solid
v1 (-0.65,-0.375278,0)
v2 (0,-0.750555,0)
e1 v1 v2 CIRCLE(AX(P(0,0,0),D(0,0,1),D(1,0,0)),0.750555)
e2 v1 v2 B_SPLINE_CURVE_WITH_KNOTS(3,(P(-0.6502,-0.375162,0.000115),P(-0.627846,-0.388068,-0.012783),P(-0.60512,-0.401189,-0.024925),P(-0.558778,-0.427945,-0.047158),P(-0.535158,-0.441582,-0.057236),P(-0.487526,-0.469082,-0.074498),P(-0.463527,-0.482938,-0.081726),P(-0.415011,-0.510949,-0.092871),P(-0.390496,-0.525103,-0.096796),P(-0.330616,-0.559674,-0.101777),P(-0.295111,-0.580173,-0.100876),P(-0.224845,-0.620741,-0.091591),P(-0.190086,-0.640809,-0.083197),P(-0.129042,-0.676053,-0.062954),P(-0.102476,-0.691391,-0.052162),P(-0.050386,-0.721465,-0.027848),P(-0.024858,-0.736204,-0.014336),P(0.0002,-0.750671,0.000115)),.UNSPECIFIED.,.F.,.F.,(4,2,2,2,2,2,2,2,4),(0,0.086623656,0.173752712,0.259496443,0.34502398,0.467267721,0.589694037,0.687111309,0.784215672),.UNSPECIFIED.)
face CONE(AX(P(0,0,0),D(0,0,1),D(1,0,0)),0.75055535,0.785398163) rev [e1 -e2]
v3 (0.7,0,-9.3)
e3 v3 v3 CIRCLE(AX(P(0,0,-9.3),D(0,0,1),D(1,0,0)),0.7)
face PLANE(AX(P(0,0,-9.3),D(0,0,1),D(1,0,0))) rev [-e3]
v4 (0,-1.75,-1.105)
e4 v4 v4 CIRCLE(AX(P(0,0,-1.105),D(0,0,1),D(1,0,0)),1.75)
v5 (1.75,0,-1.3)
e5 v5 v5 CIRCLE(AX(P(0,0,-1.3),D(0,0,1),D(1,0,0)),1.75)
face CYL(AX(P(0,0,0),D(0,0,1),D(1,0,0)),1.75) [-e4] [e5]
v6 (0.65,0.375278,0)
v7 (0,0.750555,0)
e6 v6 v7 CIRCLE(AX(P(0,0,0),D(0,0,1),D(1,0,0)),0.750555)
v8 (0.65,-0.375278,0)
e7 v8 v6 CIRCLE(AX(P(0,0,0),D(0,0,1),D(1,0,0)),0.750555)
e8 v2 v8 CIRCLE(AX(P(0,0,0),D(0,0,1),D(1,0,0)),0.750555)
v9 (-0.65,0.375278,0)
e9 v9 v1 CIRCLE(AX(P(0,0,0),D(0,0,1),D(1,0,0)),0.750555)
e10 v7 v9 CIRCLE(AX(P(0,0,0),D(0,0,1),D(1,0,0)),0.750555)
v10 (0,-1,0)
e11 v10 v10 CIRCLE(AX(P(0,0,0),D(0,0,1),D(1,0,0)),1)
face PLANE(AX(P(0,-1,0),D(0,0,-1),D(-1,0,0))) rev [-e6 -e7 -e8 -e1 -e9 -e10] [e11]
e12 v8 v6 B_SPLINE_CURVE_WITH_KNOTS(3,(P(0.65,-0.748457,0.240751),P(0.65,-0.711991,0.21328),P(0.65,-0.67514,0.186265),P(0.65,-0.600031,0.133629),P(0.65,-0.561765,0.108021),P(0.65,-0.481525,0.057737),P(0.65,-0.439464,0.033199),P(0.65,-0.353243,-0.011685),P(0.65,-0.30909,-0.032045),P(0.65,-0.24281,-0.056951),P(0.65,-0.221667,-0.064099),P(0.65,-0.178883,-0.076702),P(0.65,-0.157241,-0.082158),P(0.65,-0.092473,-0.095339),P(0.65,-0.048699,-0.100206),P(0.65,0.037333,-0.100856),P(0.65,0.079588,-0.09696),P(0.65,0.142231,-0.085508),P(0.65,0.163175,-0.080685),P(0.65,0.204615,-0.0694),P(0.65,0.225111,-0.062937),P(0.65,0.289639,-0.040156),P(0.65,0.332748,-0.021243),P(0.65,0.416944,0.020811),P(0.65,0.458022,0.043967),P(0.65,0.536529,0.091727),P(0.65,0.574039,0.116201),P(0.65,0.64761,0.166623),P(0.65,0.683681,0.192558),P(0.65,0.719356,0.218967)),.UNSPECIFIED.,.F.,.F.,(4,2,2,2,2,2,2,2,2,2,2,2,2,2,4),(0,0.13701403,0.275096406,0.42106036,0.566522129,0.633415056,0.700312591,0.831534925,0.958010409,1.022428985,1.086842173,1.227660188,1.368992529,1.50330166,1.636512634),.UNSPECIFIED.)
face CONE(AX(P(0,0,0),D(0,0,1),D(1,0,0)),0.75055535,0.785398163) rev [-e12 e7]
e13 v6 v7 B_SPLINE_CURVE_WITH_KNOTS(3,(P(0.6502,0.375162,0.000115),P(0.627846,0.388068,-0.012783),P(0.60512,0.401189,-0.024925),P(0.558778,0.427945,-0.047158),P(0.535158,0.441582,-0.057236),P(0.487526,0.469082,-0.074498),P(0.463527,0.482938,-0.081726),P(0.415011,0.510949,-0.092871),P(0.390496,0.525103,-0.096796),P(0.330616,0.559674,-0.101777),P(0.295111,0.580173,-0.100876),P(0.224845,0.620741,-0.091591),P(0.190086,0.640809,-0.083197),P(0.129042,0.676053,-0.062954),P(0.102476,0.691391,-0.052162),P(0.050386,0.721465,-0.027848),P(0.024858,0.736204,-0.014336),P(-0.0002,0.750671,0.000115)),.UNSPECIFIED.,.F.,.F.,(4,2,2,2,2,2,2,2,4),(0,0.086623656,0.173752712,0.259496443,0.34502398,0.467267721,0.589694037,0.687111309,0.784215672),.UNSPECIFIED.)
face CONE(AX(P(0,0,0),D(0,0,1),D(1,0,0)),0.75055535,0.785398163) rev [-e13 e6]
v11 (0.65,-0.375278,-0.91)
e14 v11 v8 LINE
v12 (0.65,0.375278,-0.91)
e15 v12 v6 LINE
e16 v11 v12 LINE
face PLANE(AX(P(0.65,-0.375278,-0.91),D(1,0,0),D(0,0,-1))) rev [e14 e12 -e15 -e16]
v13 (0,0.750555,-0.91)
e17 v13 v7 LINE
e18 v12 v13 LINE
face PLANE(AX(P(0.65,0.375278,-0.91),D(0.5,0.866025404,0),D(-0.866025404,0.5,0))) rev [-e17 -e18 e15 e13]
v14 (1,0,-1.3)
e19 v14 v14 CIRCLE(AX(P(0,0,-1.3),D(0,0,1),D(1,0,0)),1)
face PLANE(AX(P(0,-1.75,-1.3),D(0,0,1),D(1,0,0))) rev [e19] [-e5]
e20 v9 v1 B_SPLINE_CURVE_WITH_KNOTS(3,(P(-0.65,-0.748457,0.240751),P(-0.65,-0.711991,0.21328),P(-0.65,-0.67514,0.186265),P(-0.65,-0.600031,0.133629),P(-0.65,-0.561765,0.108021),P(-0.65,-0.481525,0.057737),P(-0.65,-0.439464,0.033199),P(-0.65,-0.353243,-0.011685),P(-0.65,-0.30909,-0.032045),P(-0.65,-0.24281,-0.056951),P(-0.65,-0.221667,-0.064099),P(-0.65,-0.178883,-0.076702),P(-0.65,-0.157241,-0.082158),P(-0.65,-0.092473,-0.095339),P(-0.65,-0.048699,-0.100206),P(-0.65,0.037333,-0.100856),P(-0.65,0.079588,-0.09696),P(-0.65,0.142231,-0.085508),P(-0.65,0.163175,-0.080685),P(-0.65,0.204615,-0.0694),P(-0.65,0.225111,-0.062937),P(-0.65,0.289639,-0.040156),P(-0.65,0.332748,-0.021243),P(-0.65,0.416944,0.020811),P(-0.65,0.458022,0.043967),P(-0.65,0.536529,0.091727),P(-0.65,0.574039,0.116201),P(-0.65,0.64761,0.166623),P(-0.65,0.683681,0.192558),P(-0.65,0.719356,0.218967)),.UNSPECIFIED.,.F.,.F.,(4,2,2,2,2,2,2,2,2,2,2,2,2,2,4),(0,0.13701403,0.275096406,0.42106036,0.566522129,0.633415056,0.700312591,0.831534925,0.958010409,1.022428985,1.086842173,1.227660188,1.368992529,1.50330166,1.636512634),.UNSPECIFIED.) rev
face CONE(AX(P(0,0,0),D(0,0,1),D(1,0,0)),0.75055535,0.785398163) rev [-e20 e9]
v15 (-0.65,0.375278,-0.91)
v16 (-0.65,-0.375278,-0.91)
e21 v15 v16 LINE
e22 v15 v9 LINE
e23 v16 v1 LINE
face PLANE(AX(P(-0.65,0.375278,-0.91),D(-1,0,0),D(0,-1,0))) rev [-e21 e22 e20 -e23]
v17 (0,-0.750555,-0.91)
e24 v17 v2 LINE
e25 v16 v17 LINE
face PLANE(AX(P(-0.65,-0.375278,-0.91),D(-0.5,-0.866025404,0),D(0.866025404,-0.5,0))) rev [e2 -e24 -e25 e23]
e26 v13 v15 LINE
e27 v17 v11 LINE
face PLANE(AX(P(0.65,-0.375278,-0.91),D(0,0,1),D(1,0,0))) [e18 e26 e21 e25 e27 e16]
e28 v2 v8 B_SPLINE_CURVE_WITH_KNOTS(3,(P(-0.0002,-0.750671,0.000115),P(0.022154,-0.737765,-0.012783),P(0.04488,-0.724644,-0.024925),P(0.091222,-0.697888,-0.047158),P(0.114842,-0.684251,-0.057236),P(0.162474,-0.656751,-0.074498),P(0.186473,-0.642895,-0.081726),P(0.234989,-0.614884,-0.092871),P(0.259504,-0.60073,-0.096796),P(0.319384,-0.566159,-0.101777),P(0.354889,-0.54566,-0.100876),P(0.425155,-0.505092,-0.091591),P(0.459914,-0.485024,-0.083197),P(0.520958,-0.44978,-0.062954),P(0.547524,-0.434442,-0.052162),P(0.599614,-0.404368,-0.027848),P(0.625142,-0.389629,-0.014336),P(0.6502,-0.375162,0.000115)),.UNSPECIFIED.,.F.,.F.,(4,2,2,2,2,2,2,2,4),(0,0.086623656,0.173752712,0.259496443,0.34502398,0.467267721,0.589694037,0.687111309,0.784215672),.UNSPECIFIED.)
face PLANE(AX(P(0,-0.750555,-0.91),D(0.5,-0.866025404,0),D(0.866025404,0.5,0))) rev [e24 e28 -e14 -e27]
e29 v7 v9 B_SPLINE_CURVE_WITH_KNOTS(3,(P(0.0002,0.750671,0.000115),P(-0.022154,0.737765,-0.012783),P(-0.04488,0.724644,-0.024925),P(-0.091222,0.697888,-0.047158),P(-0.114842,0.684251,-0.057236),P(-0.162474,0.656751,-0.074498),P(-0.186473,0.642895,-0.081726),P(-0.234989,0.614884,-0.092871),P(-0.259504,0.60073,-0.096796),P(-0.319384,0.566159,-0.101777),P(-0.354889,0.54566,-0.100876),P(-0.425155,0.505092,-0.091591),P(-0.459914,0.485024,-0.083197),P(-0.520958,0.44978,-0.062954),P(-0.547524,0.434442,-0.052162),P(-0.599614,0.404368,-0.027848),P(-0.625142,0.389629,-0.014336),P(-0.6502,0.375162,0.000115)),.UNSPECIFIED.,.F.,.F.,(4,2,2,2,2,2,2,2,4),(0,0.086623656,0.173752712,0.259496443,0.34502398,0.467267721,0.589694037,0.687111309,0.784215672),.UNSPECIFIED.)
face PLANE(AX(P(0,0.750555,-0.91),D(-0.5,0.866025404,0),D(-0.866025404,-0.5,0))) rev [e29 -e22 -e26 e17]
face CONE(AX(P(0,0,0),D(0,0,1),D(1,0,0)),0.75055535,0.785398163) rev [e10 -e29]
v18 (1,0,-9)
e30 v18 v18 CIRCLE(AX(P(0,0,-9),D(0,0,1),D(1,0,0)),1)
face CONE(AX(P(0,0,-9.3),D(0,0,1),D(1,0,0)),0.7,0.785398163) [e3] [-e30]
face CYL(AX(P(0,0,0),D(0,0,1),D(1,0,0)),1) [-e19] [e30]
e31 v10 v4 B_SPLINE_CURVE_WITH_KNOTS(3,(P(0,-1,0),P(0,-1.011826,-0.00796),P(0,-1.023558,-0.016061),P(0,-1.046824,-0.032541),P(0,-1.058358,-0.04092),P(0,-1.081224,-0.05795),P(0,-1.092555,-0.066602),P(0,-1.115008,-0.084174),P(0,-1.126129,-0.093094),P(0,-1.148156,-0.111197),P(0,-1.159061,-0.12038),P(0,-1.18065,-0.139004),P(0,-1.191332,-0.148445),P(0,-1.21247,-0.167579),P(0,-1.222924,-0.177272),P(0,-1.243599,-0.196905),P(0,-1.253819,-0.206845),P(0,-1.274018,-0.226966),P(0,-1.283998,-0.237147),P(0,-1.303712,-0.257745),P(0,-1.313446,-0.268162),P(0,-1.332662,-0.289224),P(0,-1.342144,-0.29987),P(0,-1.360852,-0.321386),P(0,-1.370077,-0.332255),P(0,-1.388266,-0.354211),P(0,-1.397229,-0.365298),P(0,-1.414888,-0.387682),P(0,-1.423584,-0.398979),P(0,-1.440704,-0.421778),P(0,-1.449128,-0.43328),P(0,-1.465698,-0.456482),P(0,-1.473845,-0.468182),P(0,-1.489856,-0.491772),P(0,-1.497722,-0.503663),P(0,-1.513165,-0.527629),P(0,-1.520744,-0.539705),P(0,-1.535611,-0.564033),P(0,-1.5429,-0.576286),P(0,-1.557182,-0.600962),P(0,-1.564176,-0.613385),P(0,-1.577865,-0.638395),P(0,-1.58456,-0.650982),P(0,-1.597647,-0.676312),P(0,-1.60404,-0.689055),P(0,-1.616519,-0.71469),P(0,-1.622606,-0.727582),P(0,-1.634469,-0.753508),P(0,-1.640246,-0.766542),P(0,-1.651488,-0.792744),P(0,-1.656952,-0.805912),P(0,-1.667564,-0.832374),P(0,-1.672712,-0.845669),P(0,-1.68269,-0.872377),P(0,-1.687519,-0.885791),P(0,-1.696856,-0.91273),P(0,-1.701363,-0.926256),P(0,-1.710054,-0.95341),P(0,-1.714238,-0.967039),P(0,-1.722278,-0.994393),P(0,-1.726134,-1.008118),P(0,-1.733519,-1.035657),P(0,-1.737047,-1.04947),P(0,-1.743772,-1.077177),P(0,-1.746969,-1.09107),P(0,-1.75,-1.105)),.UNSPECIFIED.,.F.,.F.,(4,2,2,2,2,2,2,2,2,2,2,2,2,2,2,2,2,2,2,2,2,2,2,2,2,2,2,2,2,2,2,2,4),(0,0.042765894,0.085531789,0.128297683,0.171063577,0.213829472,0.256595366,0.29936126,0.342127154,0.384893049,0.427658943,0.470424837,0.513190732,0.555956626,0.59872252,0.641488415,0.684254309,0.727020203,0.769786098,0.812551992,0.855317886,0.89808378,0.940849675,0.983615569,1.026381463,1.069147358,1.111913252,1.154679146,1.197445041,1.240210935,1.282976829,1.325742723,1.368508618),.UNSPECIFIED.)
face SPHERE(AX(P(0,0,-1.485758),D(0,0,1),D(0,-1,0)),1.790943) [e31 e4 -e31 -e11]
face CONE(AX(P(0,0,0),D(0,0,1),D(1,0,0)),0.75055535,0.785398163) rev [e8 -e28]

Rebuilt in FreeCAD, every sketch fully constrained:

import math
import FreeCAD as App
import Part
import Sketcher
Q = App.Units.Quantity


def add_polygon(sketch, points):
    """Adds a closed chain of lines whose ends are joined by coincident constraints."""
    first, n = sketch.GeometryCount, len(points)
    for a, b in zip(points, points[1:] + points[:1]):
        sketch.addGeometry(Part.LineSegment(App.Vector(*a, 0), App.Vector(*b, 0)), False)
    for i in range(n):
        sketch.addConstraint(Sketcher.Constraint("Coincident", first + i, 2, first + (i + 1) % n, 1))

doc = App.newDocument("Part")
params = doc.addObject("Spreadsheet::Sheet", "Params")
for row, (alias, value) in enumerate([
    ("sketch1_width", "1 mm"),
    ("sketch1_height", "8 mm"),
    ("sketch1_width2", "0.7 mm"),
    ("revolution_angle", "360 deg"),
    ("sketch2_width", "1 mm"),
    ("sketch2_height", "1.3 mm"),
    ("sketch2_width2", "1.75 mm"),
    ("revolution2_angle", "360 deg"),
    ("pocket1_length", "0.91 mm"),
    ("groove_angle", "360 deg"),
], start=1):
    params.set(f"A{row}", alias)
    params.set(f"B{row}", "=" + value)
    params.setAlias(f"B{row}", alias)

body = doc.addObject("PartDesign::Body", "Body")

# Sketch on YZ plane
sketch1 = doc.addObject("Sketcher::SketchObject", "Sketch")
body.addObject(sketch1)
sketch1.AttachmentSupport = (doc.YZ_Plane, [""])
sketch1.MapMode = "FlatFace"
add_polygon(sketch1, [(0.7, -9.3), (1, -9), (1, -1.3), (0, -1.3), (0, -9.3)])  # lines 0-4
sketch1.addConstraint([
    Sketcher.Constraint("Vertical", 1),
    Sketcher.Constraint("Horizontal", 2),
    Sketcher.Constraint("Vertical", 3),
    Sketcher.Constraint("Horizontal", 4),
    Sketcher.Constraint("PointOnObject", 2, 2, -2),
    Sketcher.Constraint("DistanceX", 2, 2, 2, 1, Q("1 mm")),
    Sketcher.Constraint("DistanceY", 3, 2, 3, 1, Q("8 mm")),
    Sketcher.Constraint("Angle", 0, Q("45 deg")),
    Sketcher.Constraint("DistanceX", 4, 1, 4, 2, Q("0.7 mm")),
    Sketcher.Constraint("DistanceY", 0, 2, -1, 1, Q("9 mm")),
])
sketch1.setExpression("Constraints[10]", "Params.sketch1_width")
sketch1.setExpression("Constraints[11]", "Params.sketch1_height")
sketch1.setExpression("Constraints[13]", "Params.sketch1_width2")
revolution = doc.addObject("PartDesign::Revolution", "Revolution")
body.addObject(revolution)
revolution.Profile = sketch1
revolution.ReferenceAxis = (sketch1, ["V_Axis"])
revolution.setExpression("Angle", "Params.revolution_angle")

# Sketch on YZ plane
sketch2 = doc.addObject("Sketcher::SketchObject", "Sketch001")
body.addObject(sketch2)
sketch2.AttachmentSupport = (doc.YZ_Plane, [""])
sketch2.MapMode = "FlatFace"
sketch2.addGeometry([
    Part.LineSegment(App.Vector(1.75, -1.3, 0), App.Vector(1.75, -1.105, 0)),  # 0
    Part.ArcOfCircle(Part.Circle(App.Vector(0, -1.485758, 0), App.Vector(0, 0, 1), 1.790943), math.radians(12.274875), math.radians(56.057192)),  # 1
    Part.LineSegment(App.Vector(1, 0, 0), App.Vector(0, 0, 0)),  # 2
    Part.LineSegment(App.Vector(0, 0, 0), App.Vector(0, -1.3, 0)),  # 3
    Part.LineSegment(App.Vector(0, -1.3, 0), App.Vector(1.75, -1.3, 0)),  # 4
], False)
sketch2.addConstraint([
    Sketcher.Constraint("Coincident", 0, 2, 1, 1),
    Sketcher.Constraint("Coincident", 1, 2, 2, 1),
    Sketcher.Constraint("Coincident", 2, 2, 3, 1),
    Sketcher.Constraint("Coincident", 3, 2, 4, 1),
    Sketcher.Constraint("Coincident", 4, 2, 0, 1),
    Sketcher.Constraint("Vertical", 0),
    Sketcher.Constraint("Horizontal", 2),
    Sketcher.Constraint("Vertical", 3),
    Sketcher.Constraint("Horizontal", 4),
    Sketcher.Constraint("Coincident", 2, 2, -1, 1),
    Sketcher.Constraint("PointOnObject", 1, 3, -2),
    Sketcher.Constraint("DistanceX", 2, 2, 2, 1, Q("1 mm")),
    Sketcher.Constraint("DistanceY", 3, 2, 3, 1, Q("1.3 mm")),
    Sketcher.Constraint("DistanceX", 4, 1, 4, 2, Q("1.75 mm")),
    Sketcher.Constraint("DistanceY", 0, 1, 0, 2, Q("0.195 mm")),
])
sketch2.setExpression("Constraints[11]", "Params.sketch2_width")
sketch2.setExpression("Constraints[12]", "Params.sketch2_height")
sketch2.setExpression("Constraints[13]", "Params.sketch2_width2")
revolution2 = doc.addObject("PartDesign::Revolution", "Revolution001")
body.addObject(revolution2)
revolution2.Profile = sketch2
revolution2.ReferenceAxis = (sketch2, ["V_Axis"])
revolution2.setExpression("Angle", "Params.revolution2_angle")

# Sketch on XY plane
sketch3 = doc.addObject("Sketcher::SketchObject", "Sketch002")
body.addObject(sketch3)
sketch3.AttachmentSupport = (doc.XY_Plane, [""])
sketch3.MapMode = "FlatFace"
add_polygon(sketch3, [(0.65, -0.375278), (0.65, 0.375278), (0, 0.750555), (-0.65, 0.375278), (-0.65, -0.375278), (0, -0.750555)])  # lines 0-5
sketch3.addConstraint([
    Sketcher.Constraint("Vertical", 0),
    Sketcher.Constraint("Vertical", 3),
    Sketcher.Constraint("Symmetric", 0, 2, 3, 2, -1, 1),
    Sketcher.Constraint("Symmetric", 1, 2, 4, 2, -1, 1),
    Sketcher.Constraint("PointOnObject", 1, 2, -2),
    Sketcher.Constraint("Parallel", 2, 5),
    Sketcher.Constraint("Horizontal", 0, 2, 2, 2),
    Sketcher.Constraint("Angle", 1, Q("150 deg")),
    Sketcher.Constraint("DistanceX", 2, 2, 0, 2, Q("1.3 mm")),
    Sketcher.Constraint("DistanceY", 0, 1, 0, 2, Q("0.750555 mm")),
])
pocket1 = doc.addObject("PartDesign::Pocket", "Pocket")
body.addObject(pocket1)
pocket1.Profile = sketch3
pocket1.setExpression("Length", "Params.pocket1_length")

# Sketch on YZ plane
sketch4 = doc.addObject("Sketcher::SketchObject", "Sketch003")
body.addObject(sketch4)
sketch4.AttachmentSupport = (doc.YZ_Plane, [""])
sketch4.MapMode = "FlatFace"
add_polygon(sketch4, [(0, 0), (-0.750555, 0), (0, -0.750555)])  # lines 0-2
sketch4.addConstraint([
    Sketcher.Constraint("Horizontal", 0),
    Sketcher.Constraint("Vertical", 2),
    Sketcher.Constraint("Coincident", 2, 2, -1, 1),
    Sketcher.Constraint("Equal", 0, 2),
    Sketcher.Constraint("DistanceX", 0, 2, 0, 1, Q("0.750555 mm")),
])
groove = doc.addObject("PartDesign::Groove", "Groove")
body.addObject(groove)
groove.Profile = sketch4
groove.ReferenceAxis = (sketch4, ["V_Axis"])
groove.setExpression("Angle", "Params.groove_angle")

doc.recompute()
